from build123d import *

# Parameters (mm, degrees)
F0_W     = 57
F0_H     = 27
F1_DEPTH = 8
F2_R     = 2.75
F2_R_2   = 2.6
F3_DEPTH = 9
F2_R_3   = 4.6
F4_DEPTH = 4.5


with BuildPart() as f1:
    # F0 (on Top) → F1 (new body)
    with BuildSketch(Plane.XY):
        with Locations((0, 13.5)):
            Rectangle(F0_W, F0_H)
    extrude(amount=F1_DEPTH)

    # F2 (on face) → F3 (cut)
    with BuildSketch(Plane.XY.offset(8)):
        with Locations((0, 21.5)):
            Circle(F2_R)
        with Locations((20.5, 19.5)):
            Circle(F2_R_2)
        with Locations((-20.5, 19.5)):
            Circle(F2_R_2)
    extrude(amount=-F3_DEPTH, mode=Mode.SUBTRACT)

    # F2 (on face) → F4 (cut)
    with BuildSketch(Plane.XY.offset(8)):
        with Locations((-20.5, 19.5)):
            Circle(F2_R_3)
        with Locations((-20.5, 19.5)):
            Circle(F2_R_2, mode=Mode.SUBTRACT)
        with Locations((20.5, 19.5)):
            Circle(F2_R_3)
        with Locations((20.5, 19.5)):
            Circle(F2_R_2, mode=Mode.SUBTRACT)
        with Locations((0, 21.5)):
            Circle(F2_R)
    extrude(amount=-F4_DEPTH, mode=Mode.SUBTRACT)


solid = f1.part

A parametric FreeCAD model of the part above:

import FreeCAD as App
import Part
import Sketcher

V = App.Vector
Q = App.Units.Quantity


def add_polygon(sketch, points):
    """Adds a closed chain of lines whose ends are joined by coincident constraints."""
    first, n = sketch.GeometryCount, len(points)
    for a, b in zip(points, points[1:] + points[:1]):
        sketch.addGeometry(Part.LineSegment(App.Vector(*a, 0), App.Vector(*b, 0)), False)
    for i in range(n):
        sketch.addConstraint(Sketcher.Constraint("Coincident", first + i, 2, first + (i + 1) % n, 1))

doc = App.newDocument("Part")
params = doc.addObject("Spreadsheet::Sheet", "Params")
for row, (alias, value) in enumerate([
    ("sketch1_width", "57 mm"),
    ("sketch1_height", "27 mm"),
    ("pad1_length", "8 mm"),
    ("sketch2_diameter", "5.5 mm"),
    ("sketch2_diameter2", "5.2 mm"),
    ("pocket1_length", "9 mm"),
    ("sketch3_diameter", "9.2 mm"),
    ("sketch3_diameter2", "5.2 mm"),
    ("sketch3_diameter3", "5.5 mm"),
    ("pocket2_length", "4.5 mm"),
], start=1):
    params.set(f"A{row}", alias)
    params.set(f"B{row}", "=" + value)
    params.setAlias(f"B{row}", alias)

body = doc.addObject("PartDesign::Body", "Body")

sketch1 = body.newObject("Sketcher::SketchObject", "Sketch")
sketch1.AttachmentSupport = (doc.getObject("XY_Plane"), [""])
sketch1.MapMode = "FlatFace"
add_polygon(sketch1, [(-28, 27), (-28, 0), (28, 0), (28, 27)])
sketch1.addConstraint([
    Sketcher.Constraint("Vertical", 0),
    Sketcher.Constraint("Horizontal", 1),
    Sketcher.Constraint("Vertical", 2),
    Sketcher.Constraint("Horizontal", 3),
    Sketcher.Constraint("Symmetric", 0, 2, 1, 2, -1, 1),
    Sketcher.Constraint("DistanceX", 1, 1, 1, 2, Q("57 mm")),
    Sketcher.Constraint("DistanceY", 0, 2, 0, 1, Q("27 mm")),
])
sketch1.setExpression("Constraints[9]", "Params.sketch1_width")
sketch1.setExpression("Constraints[10]", "Params.sketch1_height")
pad1 = body.newObject("PartDesign::Pad", "Pad")
pad1.Profile = sketch1
pad1.setExpression("Length", "Params.pad1_length")

sketch2 = body.newObject("Sketcher::SketchObject", "Sketch001")
sketch2.AttachmentSupport = (doc.getObject("XY_Plane"), [""])
sketch2.MapMode = "FlatFace"
sketch2.AttachmentOffset = App.Placement(V(0, 0, 8), App.Rotation())
sketch2.addGeometry([
    Part.Circle(V(0, 21.5, 0), V(0, 0, 1), 2.8),
    Part.Circle(V(20.5, 19.5, 0), V(0, 0, 1), 2.6),
    Part.Circle(V(-20.5, 19.5, 0), V(0, 0, 1), 2.6),
], False)
sketch2.addConstraint([
    Sketcher.Constraint("Equal", 1, 2),
    Sketcher.Constraint("Symmetric", 1, 3, 2, 3, -2),
    Sketcher.Constraint("PointOnObject", 0, 3, -2),
    Sketcher.Constraint("Diameter", 0, Q("5.5 mm")),
    Sketcher.Constraint("Diameter", 1, Q("5.2 mm")),
    Sketcher.Constraint("DistanceY", 1, 3, 0, 3, Q("2 mm")),
    Sketcher.Constraint("DistanceX", 2, 3, 1, 3, Q("41 mm")),
    Sketcher.Constraint("DistanceY", -1, 1, 0, 3, Q("21.5 mm")),
])
sketch2.setExpression("Constraints[3]", "Params.sketch2_diameter")
sketch2.setExpression("Constraints[4]", "Params.sketch2_diameter2")
pocket1 = body.newObject("PartDesign::Pocket", "Pocket")
pocket1.Profile = sketch2
pocket1.setExpression("Length", "Params.pocket1_length")

sketch3 = body.newObject("Sketcher::SketchObject", "Sketch002")
sketch3.AttachmentSupport = (doc.getObject("XY_Plane"), [""])
sketch3.MapMode = "FlatFace"
sketch3.AttachmentOffset = App.Placement(V(0, 0, 8), App.Rotation())
sketch3.addGeometry([
    Part.Circle(V(-20.5, 19.5, 0), V(0, 0, 1), 4.6),
    Part.Circle(V(-20.5, 19.5, 0), V(0, 0, 1), 2.6),
    Part.Circle(V(20.5, 19.5, 0), V(0, 0, 1), 4.6),
    Part.Circle(V(20.5, 19.5, 0), V(0, 0, 1), 2.6),
    Part.Circle(V(0, 21.5, 0), V(0, 0, 1), 2.8),
], False)
sketch3.addConstraint([
    Sketcher.Constraint("Coincident", 1, 3, 0, 3),
    Sketcher.Constraint("Coincident", 3, 3, 2, 3),
    Sketcher.Constraint("Equal", 0, 2),
    Sketcher.Constraint("Equal", 1, 3),
    Sketcher.Constraint("Symmetric", 0, 3, 2, 3, -2),
    Sketcher.Constraint("PointOnObject", 4, 3, -2),
    Sketcher.Constraint("Diameter", 0, Q("9.2 mm")),
    Sketcher.Constraint("Diameter", 1, Q("5.2 mm")),
    Sketcher.Constraint("Diameter", 4, Q("5.5 mm")),
    Sketcher.Constraint("DistanceX", 0, 3, 2, 3, Q("41 mm")),
    Sketcher.Constraint("DistanceY", 0, 3, 4, 3, Q("2 mm")),
    Sketcher.Constraint("DistanceY", -1, 1, 0, 3, Q("19.5 mm")),
])
sketch3.setExpression("Constraints[6]", "Params.sketch3_diameter")
sketch3.setExpression("Constraints[7]", "Params.sketch3_diameter2")
sketch3.setExpression("Constraints[8]", "Params.sketch3_diameter3")
pocket2 = body.newObject("PartDesign::Pocket", "Pocket001")
pocket2.Profile = sketch3
pocket2.setExpression("Length", "Params.pocket2_length")

doc.recompute()
